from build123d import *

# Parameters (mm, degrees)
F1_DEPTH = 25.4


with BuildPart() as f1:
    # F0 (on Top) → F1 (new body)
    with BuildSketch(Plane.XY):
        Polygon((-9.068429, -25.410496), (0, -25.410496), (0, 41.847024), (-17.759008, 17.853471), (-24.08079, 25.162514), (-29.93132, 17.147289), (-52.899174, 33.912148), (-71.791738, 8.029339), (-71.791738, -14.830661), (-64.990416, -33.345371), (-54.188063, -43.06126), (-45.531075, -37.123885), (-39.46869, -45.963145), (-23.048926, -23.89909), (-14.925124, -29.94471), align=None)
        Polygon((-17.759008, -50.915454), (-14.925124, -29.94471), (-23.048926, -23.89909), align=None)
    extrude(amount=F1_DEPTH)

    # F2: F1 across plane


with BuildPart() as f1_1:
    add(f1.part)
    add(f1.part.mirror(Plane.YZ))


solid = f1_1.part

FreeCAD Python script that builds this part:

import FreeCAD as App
import Part
import Sketcher

V = App.Vector
Q = App.Units.Quantity


def add_polygon(sketch, points):
    """Adds a closed chain of lines whose ends are joined by coincident constraints."""
    first, n = sketch.GeometryCount, len(points)
    for a, b in zip(points, points[1:] + points[:1]):
        sketch.addGeometry(Part.LineSegment(App.Vector(*a, 0), App.Vector(*b, 0)), False)
    for i in range(n):
        sketch.addConstraint(Sketcher.Constraint("Coincident", first + i, 2, first + (i + 1) % n, 1))

doc = App.newDocument("Part")
params = doc.addObject("Spreadsheet::Sheet", "Params")
for row, (alias, value) in enumerate([
    ("sketch1_height", "0.9 in"),
    ("pad1_length", "1 in"),
], start=1):
    params.set(f"A{row}", alias)
    params.set(f"B{row}", "=" + value)
    params.setAlias(f"B{row}", alias)

body = doc.addObject("PartDesign::Body", "Body")

sketch1 = body.newObject("Sketcher::SketchObject", "Sketch")
sketch1.AttachmentSupport = (doc.getObject("XY_Plane"), [""])
sketch1.MapMode = "FlatFace"
add_polygon(sketch1, [(-9, -25), (0, -25), (0, 42), (-18, 18), (-24, 25), (-30, 17), (-53, 34), (-72, 8), (-72, -15), (-65, -33), (-54, -43), (-46, -37), (-39, -46), (-23, -24), (-18, -51), (-15, -30)])
sketch1.addConstraint([
    Sketcher.Constraint("Horizontal", 0),
    Sketcher.Constraint("Vertical", 1),
    Sketcher.Constraint("Vertical", 7),
    Sketcher.Constraint("PointOnObject", 0, 2, -2),
    Sketcher.Constraint("Perpendicular", 4, 5),
    Sketcher.Constraint("Perpendicular", 5, 6),
    Sketcher.Constraint("Perpendicular", 10, 11),
    Sketcher.Constraint("Vertical", 2, 2, 13, 2),
    Sketcher.Constraint("DistanceY", 7, 2, 7, 1, Q("0.9 in")),
    Sketcher.Constraint("DistanceY", 8, 2, 4, 2, Q("1.9879 in")),
    Sketcher.Constraint("DistanceX", 0, 1, 0, 2, Q("9.068429 mm")),
    Sketcher.Constraint("DistanceY", 1, 1, 1, 2, Q("67.25752 mm")),
    Sketcher.Constraint("DistanceY", 9, 2, 7, 2, Q("28.230599 mm")),
    Sketcher.Constraint("Distance", 5, Q("28.435591 mm")),
    Sketcher.Constraint("Distance", 6, Q("32.044481 mm")),
    Sketcher.Constraint("Distance", 10, Q("10.497422 mm")),
    Sketcher.Constraint("Distance", 15, Q("7.406752 mm")),
    Sketcher.Constraint("DistanceX", 2, 2, -1, 1, Q("17.759008 mm")),
    Sketcher.Constraint("DistanceY", -1, 1, 2, 2, Q("17.853471 mm")),
    Sketcher.Constraint("DistanceX", 3, 2, -1, 1, Q("24.08079 mm")),
    Sketcher.Constraint("DistanceX", 4, 2, -1, 1, Q("29.93132 mm")),
    Sketcher.Constraint("DistanceY", -1, 1, 4, 2, Q("17.147289 mm")),
    Sketcher.Constraint("DistanceY", -1, 1, 5, 2, Q("33.912148 mm")),
    Sketcher.Constraint("DistanceX", 11, 2, -1, 1, Q("39.46869 mm")),
    Sketcher.Constraint("DistanceY", 12, 2, -1, 1, Q("23.89909 mm")),
    Sketcher.Constraint("DistanceY", 14, 2, -1, 1, Q("29.94471 mm")),
    Sketcher.Constraint("DistanceY", 3, 2, 1, 2, Q("16.68451 mm")),
    Sketcher.Constraint("DistanceX", 7, 2, 8, 2, Q("6.801322 mm")),
    Sketcher.Constraint("DistanceX", 8, 2, 10, 2, Q("19.459341 mm")),
    Sketcher.Constraint("DistanceY", 10, 2, 0, 2, Q("11.713389 mm")),
    Sketcher.Constraint("DistanceX", 10, 2, 12, 2, Q("22.482149 mm")),
    Sketcher.Constraint("DistanceY", 13, 2, 11, 2, Q("4.952309 mm")),
])
sketch1.setExpression("Constraints[24]", "Params.sketch1_height")
pad1 = body.newObject("PartDesign::Pad", "Pad")
pad1.Profile = sketch1
pad1.setExpression("Length", "Params.pad1_length")
body2 = doc.addObject("PartDesign::Body", "Body001")
doc.recompute()

body2.BaseFeature = body
doc.recompute()

mirroring = doc.addObject("Part::Mirroring", "Mirroring")
mirroring.Source = body
mirroring.Base = V(0, 0, 0)
mirroring.Normal = V(1, 0, 0)
body3 = doc.addObject("PartDesign::Body", "Body002")
body3.BaseFeature = mirroring
boolean = body2.newObject("PartDesign::Boolean", "Boolean")
boolean.Type = "Fuse"
boolean.addObjects([body3])
doc.recompute()
mirroring.Visibility = False

doc.recompute()
